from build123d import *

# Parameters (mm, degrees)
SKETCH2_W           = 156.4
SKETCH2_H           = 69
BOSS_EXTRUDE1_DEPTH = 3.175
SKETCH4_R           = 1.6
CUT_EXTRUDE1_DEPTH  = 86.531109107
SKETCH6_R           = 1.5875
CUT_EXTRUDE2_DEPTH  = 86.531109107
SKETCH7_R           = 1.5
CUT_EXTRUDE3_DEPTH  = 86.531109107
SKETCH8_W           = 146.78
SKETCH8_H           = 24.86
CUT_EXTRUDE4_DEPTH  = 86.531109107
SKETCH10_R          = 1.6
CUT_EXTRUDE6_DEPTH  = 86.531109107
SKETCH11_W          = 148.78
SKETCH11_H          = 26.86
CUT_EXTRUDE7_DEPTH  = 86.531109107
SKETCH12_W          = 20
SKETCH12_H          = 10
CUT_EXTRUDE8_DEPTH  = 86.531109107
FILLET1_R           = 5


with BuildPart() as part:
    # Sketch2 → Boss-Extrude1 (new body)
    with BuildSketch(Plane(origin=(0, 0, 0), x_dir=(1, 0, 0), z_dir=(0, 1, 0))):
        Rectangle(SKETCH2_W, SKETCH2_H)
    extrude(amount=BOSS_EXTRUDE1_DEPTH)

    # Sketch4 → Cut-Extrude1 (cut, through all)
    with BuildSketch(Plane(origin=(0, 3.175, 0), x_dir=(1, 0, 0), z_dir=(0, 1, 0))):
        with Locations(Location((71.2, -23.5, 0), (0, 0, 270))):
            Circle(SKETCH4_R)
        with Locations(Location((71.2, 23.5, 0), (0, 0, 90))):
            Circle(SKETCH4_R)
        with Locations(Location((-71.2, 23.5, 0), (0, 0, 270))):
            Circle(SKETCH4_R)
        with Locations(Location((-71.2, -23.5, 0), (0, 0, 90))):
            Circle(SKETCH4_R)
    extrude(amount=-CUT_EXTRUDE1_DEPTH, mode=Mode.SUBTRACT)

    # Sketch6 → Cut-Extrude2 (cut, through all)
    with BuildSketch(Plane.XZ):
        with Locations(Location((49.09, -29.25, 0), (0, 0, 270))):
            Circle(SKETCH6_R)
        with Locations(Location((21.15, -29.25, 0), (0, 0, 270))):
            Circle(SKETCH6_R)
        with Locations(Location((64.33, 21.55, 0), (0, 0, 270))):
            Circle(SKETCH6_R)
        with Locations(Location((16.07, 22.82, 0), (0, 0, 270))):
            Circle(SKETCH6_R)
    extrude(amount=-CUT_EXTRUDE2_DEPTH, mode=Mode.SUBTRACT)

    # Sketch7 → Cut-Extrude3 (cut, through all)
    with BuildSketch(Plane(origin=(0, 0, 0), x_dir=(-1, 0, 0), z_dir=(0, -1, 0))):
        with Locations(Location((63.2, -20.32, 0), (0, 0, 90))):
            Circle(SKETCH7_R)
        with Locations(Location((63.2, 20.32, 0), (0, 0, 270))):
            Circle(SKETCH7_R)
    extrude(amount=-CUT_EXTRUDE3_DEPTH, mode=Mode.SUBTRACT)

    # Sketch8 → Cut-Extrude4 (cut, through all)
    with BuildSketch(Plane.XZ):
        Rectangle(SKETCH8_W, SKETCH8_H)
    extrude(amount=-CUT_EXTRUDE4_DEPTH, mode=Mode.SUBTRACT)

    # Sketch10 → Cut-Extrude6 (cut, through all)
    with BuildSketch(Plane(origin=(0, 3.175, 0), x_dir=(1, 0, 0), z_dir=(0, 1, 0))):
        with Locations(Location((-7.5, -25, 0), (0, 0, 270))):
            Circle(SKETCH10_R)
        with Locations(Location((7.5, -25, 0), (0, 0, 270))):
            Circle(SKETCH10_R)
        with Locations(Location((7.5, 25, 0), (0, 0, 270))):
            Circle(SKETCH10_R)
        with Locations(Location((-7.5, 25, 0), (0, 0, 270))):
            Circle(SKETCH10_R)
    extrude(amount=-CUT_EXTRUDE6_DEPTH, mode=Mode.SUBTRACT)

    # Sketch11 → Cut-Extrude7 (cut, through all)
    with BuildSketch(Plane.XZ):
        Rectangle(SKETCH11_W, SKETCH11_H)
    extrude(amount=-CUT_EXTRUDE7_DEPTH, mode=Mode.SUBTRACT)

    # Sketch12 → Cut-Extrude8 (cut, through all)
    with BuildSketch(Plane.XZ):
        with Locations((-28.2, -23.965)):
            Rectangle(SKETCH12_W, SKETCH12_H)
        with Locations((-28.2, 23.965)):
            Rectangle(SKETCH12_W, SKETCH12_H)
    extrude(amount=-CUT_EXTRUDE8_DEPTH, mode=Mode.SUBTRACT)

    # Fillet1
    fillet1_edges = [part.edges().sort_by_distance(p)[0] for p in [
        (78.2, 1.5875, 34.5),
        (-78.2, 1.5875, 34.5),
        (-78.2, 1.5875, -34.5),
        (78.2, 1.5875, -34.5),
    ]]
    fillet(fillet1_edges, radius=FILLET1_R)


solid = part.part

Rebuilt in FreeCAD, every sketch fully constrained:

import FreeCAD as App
import Part
import Sketcher
from FreeCAD import Vector
Q = App.Units.Quantity


def edges_at(feature, points):
    """Names of the edges that pass closest to the given points."""
    edges = feature.Shape.Edges
    near = lambda p: min(range(len(edges)), key=lambda i: edges[i].distToShape(Part.Vertex(*p))[0])
    return sorted({f"Edge{near(p) + 1}" for p in points})


def add_polygon(sketch, points):
    """Adds a closed chain of lines whose ends are joined by coincident constraints."""
    first, n = sketch.GeometryCount, len(points)
    for a, b in zip(points, points[1:] + points[:1]):
        sketch.addGeometry(Part.LineSegment(App.Vector(*a, 0), App.Vector(*b, 0)), False)
    for i in range(n):
        sketch.addConstraint(Sketcher.Constraint("Coincident", first + i, 2, first + (i + 1) % n, 1))

doc = App.newDocument("Part")
body = doc.addObject("PartDesign::Body", "Body")

# Sketch on XZ plane
sketch1 = body.newObject("Sketcher::SketchObject", "Sketch")
sketch1.AttachmentSupport = (doc.getObject("XZ_Plane"), [""])
sketch1.MapMode = "FlatFace"
add_polygon(sketch1, [(-78.2, -34.5), (-78.2, 34.5), (78.2, 34.5), (78.2, -34.5)])  # lines 0-3
sketch1.addConstraint([
    Sketcher.Constraint("Vertical", 0),
    Sketcher.Constraint("Horizontal", 1),
    Sketcher.Constraint("Vertical", 2),
    Sketcher.Constraint("Horizontal", 3),
    Sketcher.Constraint("Symmetric", 0, 2, 2, 2, -1, 1),
    Sketcher.Constraint("DistanceY", 0, 1, 0, 2, Q("69 mm")),
    Sketcher.Constraint("DistanceX", 1, 1, 1, 2, Q("156.4 mm")),
])
pad1 = body.newObject("PartDesign::Pad", "Pad")
pad1.Profile = sketch1
pad1.Length = 3.175
pad1.Reversed = True

# Sketch on XZ plane
sketch2 = body.newObject("Sketcher::SketchObject", "Sketch001")
sketch2.AttachmentSupport = (doc.getObject("XZ_Plane"), [""])
sketch2.MapMode = "FlatFace"
sketch2.AttachmentOffset = App.Placement(Vector(0, 0, -3.175), App.Rotation())
sketch2.addGeometry([
    Part.Circle(Vector(71.2, 23.5, 0), Vector(0, 0, 1), 1.6),
    Part.Circle(Vector(71.2, -23.5, 0), Vector(0, 0, 1), 1.6),
    Part.Circle(Vector(-71.2, -23.5, 0), Vector(0, 0, 1), 1.6),
    Part.Circle(Vector(-71.2, 23.5, 0), Vector(0, 0, 1), 1.6),
], False)
sketch2.addConstraint([
    Sketcher.Constraint("Equal", 0, 1),
    Sketcher.Constraint("Equal", 1, 2),
    Sketcher.Constraint("Equal", 2, 3),
    Sketcher.Constraint("Symmetric", 0, 3, 2, 3, -1, 1),
    Sketcher.Constraint("Symmetric", 1, 3, 3, 3, -1, 1),
    Sketcher.Constraint("Symmetric", 1, 3, 2, 3, -2),
    Sketcher.Constraint("Diameter", 0, Q("3.2 mm")),
    Sketcher.Constraint("DistanceY", 1, 3, 0, 3, Q("47 mm")),
    Sketcher.Constraint("DistanceX", -1, 1, 0, 3, Q("71.2 mm")),
])
pocket1 = body.newObject("PartDesign::Pocket", "Pocket")
pocket1.Profile = sketch2
pocket1.Type = "ThroughAll"
pocket1.Reversed = True

# Sketch on XZ plane
sketch3 = body.newObject("Sketcher::SketchObject", "Sketch002")
sketch3.AttachmentSupport = (doc.getObject("XZ_Plane"), [""])
sketch3.MapMode = "FlatFace"
sketch3.addGeometry([
    Part.Circle(Vector(49.09, -29.25, 0), Vector(0, 0, 1), 1.5875),
    Part.Circle(Vector(21.15, -29.25, 0), Vector(0, 0, 1), 1.5875),
    Part.Circle(Vector(64.33, 21.55, 0), Vector(0, 0, 1), 1.5875),
    Part.Circle(Vector(16.07, 22.82, 0), Vector(0, 0, 1), 1.5875),
], False)
sketch3.addConstraint([
    Sketcher.Constraint("Equal", 0, 1),
    Sketcher.Constraint("Equal", 1, 2),
    Sketcher.Constraint("Equal", 2, 3),
    Sketcher.Constraint("Horizontal", 0, 3, 1, 3),
    Sketcher.Constraint("Diameter", 0, Q("3.175 mm")),
    Sketcher.Constraint("DistanceY", 0, 3, 2, 3, Q("50.8 mm")),
    Sketcher.Constraint("DistanceX", -1, 1, 0, 3, Q("49.09 mm")),
    Sketcher.Constraint("DistanceY", 0, 3, -1, 1, Q("29.25 mm")),
    Sketcher.Constraint("DistanceX", -1, 1, 1, 3, Q("21.15 mm")),
    Sketcher.Constraint("DistanceX", -1, 1, 2, 3, Q("64.33 mm")),
    Sketcher.Constraint("DistanceX", -1, 1, 3, 3, Q("16.07 mm")),
    Sketcher.Constraint("DistanceY", -1, 1, 3, 3, Q("22.82 mm")),
])
pocket2 = body.newObject("PartDesign::Pocket", "Pocket001")
pocket2.Profile = sketch3
pocket2.Type = "ThroughAll"

# Sketch on XZ plane
sketch4 = body.newObject("Sketcher::SketchObject", "Sketch003")
sketch4.AttachmentSupport = (doc.getObject("XZ_Plane"), [""])
sketch4.MapMode = "FlatFace"
sketch4.addGeometry([
    Part.Circle(Vector(-63.2, 20.32, 0), Vector(0, 0, 1), 1.5),
    Part.Circle(Vector(-63.2, -20.32, 0), Vector(0, 0, 1), 1.5),
], False)
sketch4.addConstraint([
    Sketcher.Constraint("Equal", 0, 1),
    Sketcher.Constraint("Symmetric", 0, 3, 1, 3, -1),
    Sketcher.Constraint("Diameter", 0, Q("3 mm")),
    Sketcher.Constraint("DistanceX", 0, 3, -1, 1, Q("63.2 mm")),
    Sketcher.Constraint("DistanceY", -1, 1, 0, 3, Q("20.32 mm")),
])
pocket3 = body.newObject("PartDesign::Pocket", "Pocket002")
pocket3.Profile = sketch4
pocket3.Type = "ThroughAll"

# Sketch on XZ plane
sketch5 = body.newObject("Sketcher::SketchObject", "Sketch004")
sketch5.AttachmentSupport = (doc.getObject("XZ_Plane"), [""])
sketch5.MapMode = "FlatFace"
add_polygon(sketch5, [(-73.39, 12.43), (-73.39, -12.43), (73.39, -12.43), (73.39, 12.43)])  # lines 0-3
sketch5.addConstraint([
    Sketcher.Constraint("Vertical", 0),
    Sketcher.Constraint("Horizontal", 1),
    Sketcher.Constraint("Vertical", 2),
    Sketcher.Constraint("Horizontal", 3),
    Sketcher.Constraint("Symmetric", 0, 2, 2, 2, -1, 1),
    Sketcher.Constraint("DistanceX", 1, 1, 1, 2, Q("146.78 mm")),
    Sketcher.Constraint("DistanceY", 0, 2, 0, 1, Q("24.86 mm")),
])
pocket4 = body.newObject("PartDesign::Pocket", "Pocket003")
pocket4.Profile = sketch5
pocket4.Type = "ThroughAll"

# Sketch on XZ plane
sketch6 = body.newObject("Sketcher::SketchObject", "Sketch005")
sketch6.AttachmentSupport = (doc.getObject("XZ_Plane"), [""])
sketch6.MapMode = "FlatFace"
sketch6.AttachmentOffset = App.Placement(Vector(0, 0, -3.175), App.Rotation())
sketch6.addGeometry([
    Part.Circle(Vector(-7.5, 25, 0), Vector(0, 0, 1), 1.6),
    Part.Circle(Vector(7.5, 25, 0), Vector(0, 0, 1), 1.6),
    Part.Circle(Vector(7.5, -25, 0), Vector(0, 0, 1), 1.6),
    Part.Circle(Vector(-7.5, -25, 0), Vector(0, 0, 1), 1.6),
], False)
sketch6.addConstraint([
    Sketcher.Constraint("Equal", 0, 1),
    Sketcher.Constraint("Equal", 1, 2),
    Sketcher.Constraint("Equal", 2, 3),
    Sketcher.Constraint("Symmetric", 0, 3, 2, 3, -1, 1),
    Sketcher.Constraint("Symmetric", 1, 3, 3, 3, -1, 1),
    Sketcher.Constraint("Symmetric", 0, 3, 1, 3, -2),
    Sketcher.Constraint("Diameter", 0, Q("3.2 mm")),
    Sketcher.Constraint("DistanceY", -1, 1, 0, 3, Q("25 mm")),
    Sketcher.Constraint("DistanceX", 0, 3, 1, 3, Q("15 mm")),
])
pocket5 = body.newObject("PartDesign::Pocket", "Pocket004")
pocket5.Profile = sketch6
pocket5.Type = "ThroughAll"
pocket5.Reversed = True

# Sketch on XZ plane
sketch7 = body.newObject("Sketcher::SketchObject", "Sketch006")
sketch7.AttachmentSupport = (doc.getObject("XZ_Plane"), [""])
sketch7.MapMode = "FlatFace"
add_polygon(sketch7, [(-74.39, 13.43), (-74.39, -13.43), (74.39, -13.43), (74.39, 13.43)])  # lines 0-3
sketch7.addConstraint([
    Sketcher.Constraint("Vertical", 0),
    Sketcher.Constraint("Horizontal", 1),
    Sketcher.Constraint("Vertical", 2),
    Sketcher.Constraint("Horizontal", 3),
    Sketcher.Constraint("Symmetric", 0, 2, 2, 2, -1, 1),
    Sketcher.Constraint("DistanceX", 1, 1, 1, 2, Q("148.78 mm")),
    Sketcher.Constraint("DistanceY", 0, 2, 0, 1, Q("26.86 mm")),
])
pocket6 = body.newObject("PartDesign::Pocket", "Pocket005")
pocket6.Profile = sketch7
pocket6.Type = "ThroughAll"

# Sketch on XZ plane
sketch8 = body.newObject("Sketcher::SketchObject", "Sketch007")
sketch8.AttachmentSupport = (doc.getObject("XZ_Plane"), [""])
sketch8.MapMode = "FlatFace"
add_polygon(sketch8, [(-38.2, -18.965), (-38.2, -28.965), (-18.2, -28.965), (-18.2, -18.965)])  # lines 0-3
add_polygon(sketch8, [(-38.2, 28.965), (-38.2, 18.965), (-18.2, 18.965), (-18.2, 28.965)])  # lines 4-7
sketch8.addConstraint([
    Sketcher.Constraint("Vertical", 0),
    Sketcher.Constraint("Horizontal", 1),
    Sketcher.Constraint("Vertical", 2),
    Sketcher.Constraint("Horizontal", 3),
    Sketcher.Constraint("Vertical", 4),
    Sketcher.Constraint("Horizontal", 5),
    Sketcher.Constraint("Vertical", 6),
    Sketcher.Constraint("Horizontal", 7),
    Sketcher.Constraint("Symmetric", 3, 2, 4, 2, -1),
    Sketcher.Constraint("Symmetric", 1, 2, 6, 2, -1),
    Sketcher.Constraint("DistanceX", 1, 1, 1, 2, Q("20 mm")),
    Sketcher.Constraint("DistanceY", 0, 2, 0, 1, Q("10 mm")),
    Sketcher.Constraint("DistanceX", 0, 2, -1, 1, Q("38.2 mm")),
    Sketcher.Constraint("DistanceY", 3, 2, 4, 2, Q("37.93 mm")),
])
pocket7 = body.newObject("PartDesign::Pocket", "Pocket006")
pocket7.Profile = sketch8
pocket7.Type = "ThroughAll"
doc.recompute()

fillet = body.newObject("PartDesign::Fillet", "Fillet")
fillet.Base = (pocket7, edges_at(pocket7, [
    (78.2, 1.587, 34.5),
    (-78.2, 1.587, 34.5),
    (-78.2, 1.587, -34.5),
    (78.2, 1.587, -34.5),
]))
fillet.Radius = 5

doc.recompute()
